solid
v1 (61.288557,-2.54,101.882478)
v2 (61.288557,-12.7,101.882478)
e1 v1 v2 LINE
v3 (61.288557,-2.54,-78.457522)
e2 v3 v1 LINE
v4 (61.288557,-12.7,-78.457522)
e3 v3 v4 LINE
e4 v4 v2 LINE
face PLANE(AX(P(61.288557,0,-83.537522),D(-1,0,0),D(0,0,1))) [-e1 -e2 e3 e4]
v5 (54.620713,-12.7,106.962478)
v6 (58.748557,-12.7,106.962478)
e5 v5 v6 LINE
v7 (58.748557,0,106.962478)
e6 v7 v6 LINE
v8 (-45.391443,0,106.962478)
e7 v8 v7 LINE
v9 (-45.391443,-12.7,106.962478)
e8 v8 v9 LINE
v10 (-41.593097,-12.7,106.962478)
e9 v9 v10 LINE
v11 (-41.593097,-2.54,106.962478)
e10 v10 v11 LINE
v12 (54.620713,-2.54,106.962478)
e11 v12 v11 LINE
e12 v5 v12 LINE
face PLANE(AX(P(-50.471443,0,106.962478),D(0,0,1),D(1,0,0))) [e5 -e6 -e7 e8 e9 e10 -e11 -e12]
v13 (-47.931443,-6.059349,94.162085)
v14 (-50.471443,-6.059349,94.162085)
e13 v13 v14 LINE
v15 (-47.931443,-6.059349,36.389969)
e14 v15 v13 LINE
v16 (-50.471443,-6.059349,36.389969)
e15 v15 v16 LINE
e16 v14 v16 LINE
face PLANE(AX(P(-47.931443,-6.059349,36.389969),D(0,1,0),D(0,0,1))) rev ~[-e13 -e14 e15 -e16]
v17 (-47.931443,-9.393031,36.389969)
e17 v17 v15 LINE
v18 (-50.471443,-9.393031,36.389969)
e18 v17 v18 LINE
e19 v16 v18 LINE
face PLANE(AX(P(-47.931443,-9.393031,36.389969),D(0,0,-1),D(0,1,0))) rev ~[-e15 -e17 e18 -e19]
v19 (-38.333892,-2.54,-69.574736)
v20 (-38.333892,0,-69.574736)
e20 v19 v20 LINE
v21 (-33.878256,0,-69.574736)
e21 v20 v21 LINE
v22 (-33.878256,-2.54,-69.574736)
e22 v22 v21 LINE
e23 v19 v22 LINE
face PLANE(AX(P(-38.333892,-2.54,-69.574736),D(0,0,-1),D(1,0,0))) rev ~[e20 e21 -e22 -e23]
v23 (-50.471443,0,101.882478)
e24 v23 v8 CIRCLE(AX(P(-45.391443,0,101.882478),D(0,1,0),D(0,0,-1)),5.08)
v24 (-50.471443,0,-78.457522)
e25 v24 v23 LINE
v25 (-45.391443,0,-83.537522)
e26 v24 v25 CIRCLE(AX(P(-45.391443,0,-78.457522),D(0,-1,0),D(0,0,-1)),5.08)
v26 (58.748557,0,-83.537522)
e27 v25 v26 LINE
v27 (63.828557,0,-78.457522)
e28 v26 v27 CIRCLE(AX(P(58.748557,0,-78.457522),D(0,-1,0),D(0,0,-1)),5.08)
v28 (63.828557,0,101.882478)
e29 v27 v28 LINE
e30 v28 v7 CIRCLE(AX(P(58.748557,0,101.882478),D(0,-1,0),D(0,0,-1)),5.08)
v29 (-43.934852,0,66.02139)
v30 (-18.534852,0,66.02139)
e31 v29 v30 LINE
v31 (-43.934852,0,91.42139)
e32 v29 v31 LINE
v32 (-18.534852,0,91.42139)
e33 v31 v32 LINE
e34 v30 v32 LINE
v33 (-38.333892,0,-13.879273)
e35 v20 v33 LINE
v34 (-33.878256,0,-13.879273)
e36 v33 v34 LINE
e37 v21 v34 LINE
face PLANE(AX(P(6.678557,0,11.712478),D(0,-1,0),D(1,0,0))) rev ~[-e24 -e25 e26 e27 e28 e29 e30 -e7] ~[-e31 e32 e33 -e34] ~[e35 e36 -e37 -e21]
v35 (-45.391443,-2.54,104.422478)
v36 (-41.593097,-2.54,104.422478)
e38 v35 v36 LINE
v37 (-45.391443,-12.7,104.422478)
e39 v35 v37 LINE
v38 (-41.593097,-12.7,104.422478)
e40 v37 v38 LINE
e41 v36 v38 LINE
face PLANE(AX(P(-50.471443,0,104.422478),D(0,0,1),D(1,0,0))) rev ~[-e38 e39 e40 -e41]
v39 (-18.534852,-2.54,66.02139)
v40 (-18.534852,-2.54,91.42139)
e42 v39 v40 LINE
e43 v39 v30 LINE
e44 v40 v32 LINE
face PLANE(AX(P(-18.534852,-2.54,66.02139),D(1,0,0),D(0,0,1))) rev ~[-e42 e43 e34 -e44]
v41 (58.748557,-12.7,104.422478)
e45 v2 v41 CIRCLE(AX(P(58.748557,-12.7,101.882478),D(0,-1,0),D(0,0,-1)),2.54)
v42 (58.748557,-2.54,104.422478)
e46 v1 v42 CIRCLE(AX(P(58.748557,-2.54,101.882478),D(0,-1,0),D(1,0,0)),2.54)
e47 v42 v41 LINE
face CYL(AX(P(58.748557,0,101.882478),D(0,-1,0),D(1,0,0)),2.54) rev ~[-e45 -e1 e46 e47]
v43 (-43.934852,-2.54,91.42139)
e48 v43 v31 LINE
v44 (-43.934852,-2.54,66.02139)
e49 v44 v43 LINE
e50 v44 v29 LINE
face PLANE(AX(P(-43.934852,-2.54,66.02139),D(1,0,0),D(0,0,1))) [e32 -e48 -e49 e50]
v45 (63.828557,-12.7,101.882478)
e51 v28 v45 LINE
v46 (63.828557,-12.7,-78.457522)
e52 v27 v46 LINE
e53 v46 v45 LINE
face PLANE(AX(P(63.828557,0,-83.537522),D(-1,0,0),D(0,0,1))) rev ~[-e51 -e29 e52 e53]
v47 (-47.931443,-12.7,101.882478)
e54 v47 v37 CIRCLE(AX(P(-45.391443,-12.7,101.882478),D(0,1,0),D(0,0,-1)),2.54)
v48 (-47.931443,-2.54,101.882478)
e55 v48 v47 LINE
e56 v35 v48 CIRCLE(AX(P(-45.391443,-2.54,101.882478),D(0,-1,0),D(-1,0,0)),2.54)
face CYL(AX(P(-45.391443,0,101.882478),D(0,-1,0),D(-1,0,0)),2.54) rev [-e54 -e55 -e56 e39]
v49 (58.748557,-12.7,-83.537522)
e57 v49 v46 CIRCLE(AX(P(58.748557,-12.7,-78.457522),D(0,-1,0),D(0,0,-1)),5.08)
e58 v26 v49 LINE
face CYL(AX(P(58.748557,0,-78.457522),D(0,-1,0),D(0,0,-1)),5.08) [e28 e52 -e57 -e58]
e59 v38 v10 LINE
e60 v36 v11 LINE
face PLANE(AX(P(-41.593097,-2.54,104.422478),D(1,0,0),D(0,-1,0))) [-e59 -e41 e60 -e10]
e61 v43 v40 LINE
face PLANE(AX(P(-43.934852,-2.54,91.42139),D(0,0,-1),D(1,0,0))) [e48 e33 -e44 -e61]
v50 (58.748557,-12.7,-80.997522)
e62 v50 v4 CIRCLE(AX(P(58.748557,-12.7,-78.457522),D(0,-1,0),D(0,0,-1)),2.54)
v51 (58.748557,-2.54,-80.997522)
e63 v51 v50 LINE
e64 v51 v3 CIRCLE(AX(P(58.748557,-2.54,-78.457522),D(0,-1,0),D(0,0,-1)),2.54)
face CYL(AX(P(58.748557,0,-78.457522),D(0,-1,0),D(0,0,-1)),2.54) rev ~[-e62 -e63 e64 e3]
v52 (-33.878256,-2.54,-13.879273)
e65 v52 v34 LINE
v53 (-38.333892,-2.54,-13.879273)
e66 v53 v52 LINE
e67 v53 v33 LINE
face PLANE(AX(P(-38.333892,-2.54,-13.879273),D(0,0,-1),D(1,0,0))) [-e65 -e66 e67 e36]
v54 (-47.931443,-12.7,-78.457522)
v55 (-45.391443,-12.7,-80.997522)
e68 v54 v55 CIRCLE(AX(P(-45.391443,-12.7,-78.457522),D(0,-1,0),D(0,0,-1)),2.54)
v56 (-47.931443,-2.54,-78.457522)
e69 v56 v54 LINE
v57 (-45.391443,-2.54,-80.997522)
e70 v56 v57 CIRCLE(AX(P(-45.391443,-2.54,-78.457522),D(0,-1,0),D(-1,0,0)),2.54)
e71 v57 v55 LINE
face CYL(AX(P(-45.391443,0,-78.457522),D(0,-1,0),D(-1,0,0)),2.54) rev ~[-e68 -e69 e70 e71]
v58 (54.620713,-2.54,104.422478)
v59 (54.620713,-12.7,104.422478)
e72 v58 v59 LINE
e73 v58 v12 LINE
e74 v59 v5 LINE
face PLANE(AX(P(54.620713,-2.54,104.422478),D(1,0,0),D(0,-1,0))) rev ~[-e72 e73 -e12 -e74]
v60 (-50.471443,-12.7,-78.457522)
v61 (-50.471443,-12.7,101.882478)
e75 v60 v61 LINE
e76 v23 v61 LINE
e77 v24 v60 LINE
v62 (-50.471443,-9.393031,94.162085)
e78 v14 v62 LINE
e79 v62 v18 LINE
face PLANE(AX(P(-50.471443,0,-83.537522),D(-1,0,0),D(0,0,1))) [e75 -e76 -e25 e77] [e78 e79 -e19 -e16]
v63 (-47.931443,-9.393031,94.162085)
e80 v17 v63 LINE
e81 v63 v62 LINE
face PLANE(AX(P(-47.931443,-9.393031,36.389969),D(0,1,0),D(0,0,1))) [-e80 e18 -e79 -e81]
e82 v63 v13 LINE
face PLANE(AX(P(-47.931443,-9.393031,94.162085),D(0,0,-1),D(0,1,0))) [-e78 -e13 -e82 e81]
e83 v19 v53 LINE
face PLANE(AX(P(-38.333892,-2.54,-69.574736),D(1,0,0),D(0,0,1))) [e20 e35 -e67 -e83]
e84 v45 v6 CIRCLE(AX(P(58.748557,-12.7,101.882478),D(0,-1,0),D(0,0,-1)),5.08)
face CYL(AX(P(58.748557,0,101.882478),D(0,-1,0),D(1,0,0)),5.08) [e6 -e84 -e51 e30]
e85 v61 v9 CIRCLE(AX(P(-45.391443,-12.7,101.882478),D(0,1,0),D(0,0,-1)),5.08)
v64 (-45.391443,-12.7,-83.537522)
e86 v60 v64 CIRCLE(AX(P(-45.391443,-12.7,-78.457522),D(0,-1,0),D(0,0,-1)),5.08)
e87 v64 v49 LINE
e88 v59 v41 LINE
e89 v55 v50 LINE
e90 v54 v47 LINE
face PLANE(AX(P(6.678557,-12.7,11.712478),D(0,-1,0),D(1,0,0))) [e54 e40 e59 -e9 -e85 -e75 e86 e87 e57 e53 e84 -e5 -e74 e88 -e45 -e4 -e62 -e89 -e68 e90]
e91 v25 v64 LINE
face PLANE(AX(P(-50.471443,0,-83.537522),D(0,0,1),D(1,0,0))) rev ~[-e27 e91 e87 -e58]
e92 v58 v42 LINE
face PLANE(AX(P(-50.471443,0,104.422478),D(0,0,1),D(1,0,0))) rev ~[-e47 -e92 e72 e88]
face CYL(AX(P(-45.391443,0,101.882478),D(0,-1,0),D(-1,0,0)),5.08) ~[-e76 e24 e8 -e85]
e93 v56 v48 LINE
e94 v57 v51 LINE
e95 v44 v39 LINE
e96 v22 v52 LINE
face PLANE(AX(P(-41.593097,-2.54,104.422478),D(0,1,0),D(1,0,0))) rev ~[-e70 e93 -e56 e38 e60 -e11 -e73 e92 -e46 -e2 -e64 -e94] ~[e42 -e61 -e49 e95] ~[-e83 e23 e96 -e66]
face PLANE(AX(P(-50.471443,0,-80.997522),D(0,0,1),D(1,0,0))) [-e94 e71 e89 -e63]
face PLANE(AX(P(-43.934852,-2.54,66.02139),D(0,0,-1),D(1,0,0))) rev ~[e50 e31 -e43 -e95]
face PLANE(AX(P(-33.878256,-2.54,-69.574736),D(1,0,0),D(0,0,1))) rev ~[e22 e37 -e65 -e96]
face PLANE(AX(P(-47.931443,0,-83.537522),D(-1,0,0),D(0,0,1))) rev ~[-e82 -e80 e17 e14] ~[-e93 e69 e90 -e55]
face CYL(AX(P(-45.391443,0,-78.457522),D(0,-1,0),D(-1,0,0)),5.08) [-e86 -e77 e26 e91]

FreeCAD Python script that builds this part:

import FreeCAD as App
import Part
import Sketcher

V = App.Vector
Q = App.Units.Quantity


def edges_at(feature, points):
    """Names of the edges that pass closest to the given points."""
    edges = feature.Shape.Edges
    near = lambda p: min(range(len(edges)), key=lambda i: edges[i].distToShape(Part.Vertex(*p))[0])
    return sorted({f"Edge{near(p) + 1}" for p in points})


def faces_at(feature, points):
    """Names of the faces that lie closest to the given points."""
    faces = feature.Shape.Faces
    near = lambda p: min(range(len(faces)), key=lambda i: faces[i].distToShape(Part.Vertex(*p))[0])
    return sorted({f"Face{near(p) + 1}" for p in points})

doc = App.newDocument("Part")
body = doc.addObject("PartDesign::Body", "Body")

# Sketch on XZ plane
sketch1 = doc.addObject("Sketcher::SketchObject", "Sketch")
body.addObject(sketch1)
sketch1.AttachmentSupport = (doc.XZ_Plane, [""])
sketch1.MapMode = "FlatFace"
sketch1.addGeometry([
    Part.LineSegment(V(-50, 107, 0), V(-50, -84, 0)),
    Part.LineSegment(V(-50, -84, 0), V(64, -84, 0)),
    Part.LineSegment(V(64, -84, 0), V(64, 107, 0)),
    Part.LineSegment(V(64, 107, 0), V(-50, 107, 0)),
], False)
sketch1.addConstraint([
    Sketcher.Constraint("Coincident", 0, 2, 1, 1),
    Sketcher.Constraint("Coincident", 1, 2, 2, 1),
    Sketcher.Constraint("Coincident", 2, 2, 3, 1),
    Sketcher.Constraint("Coincident", 3, 2, 0, 1),
    Sketcher.Constraint("Vertical", 0),
    Sketcher.Constraint("Horizontal", 1),
    Sketcher.Constraint("Vertical", 2),
    Sketcher.Constraint("Horizontal", 3),
    Sketcher.Constraint("DistanceX", 1, 1, 1, 2, Q("4.5 in")),
    Sketcher.Constraint("DistanceY", 0, 2, 0, 1, Q("7.5 in")),
    Sketcher.Constraint("DistanceY", 0, 2, -1, 1, 83.537522),
    Sketcher.Constraint("DistanceX", 0, 2, -1, 1, 50.471443),
])
pad1 = doc.addObject("PartDesign::Pad", "Pad")
body.addObject(pad1)
pad1.Profile = sketch1
pad1.Length = Q("0.5 in")
doc.recompute()

fillet = doc.addObject("PartDesign::Fillet", "Fillet")
body.addObject(fillet)
fillet.Base = (pad1, edges_at(pad1, [
    (-50.471, -6.35, 106.962),
    (-50.471, -6.35, -83.538),
    (63.829, -6.35, -83.538),
    (63.829, -6.35, 106.962),
]))
fillet.Radius = Q("0.2 in")
doc.recompute()

thickness = doc.addObject("PartDesign::Thickness", "Thickness")
body.addObject(thickness)
thickness.Base = (fillet, faces_at(fillet, [(6.679, -12.7, 11.712)]))
thickness.Value = Q("0.1 in")
thickness.Reversed = True
thickness.Join = "Arc"

# Sketch on XZ plane
sketch2 = doc.addObject("Sketcher::SketchObject", "Sketch001")
body.addObject(sketch2)
sketch2.AttachmentSupport = (doc.XZ_Plane, [""])
sketch2.MapMode = "FlatFace"
sketch2.AttachmentOffset = App.Placement(V(0, 0, 0.1 * 25.4), App.Rotation())
sketch2.addGeometry([
    Part.LineSegment(V(-56, 94.6, 0), V(-56, -9, 0)),  # 0
    Part.LineSegment(V(-56, -9, 0), V(-52.1, -9, 0)),  # 1
    Part.LineSegment(V(-52.1, -9, 0), V(-52.1, 94.6, 0)),  # 2
    Part.LineSegment(V(-52.1, 94.6, 0), V(-56, 94.6, 0)),  # 3
    Part.LineSegment(V(-43.9, 91.4, 0), V(-43.9, 66, 0)),  # 4
    Part.LineSegment(V(-43.9, 66, 0), V(-18.5, 66, 0)),  # 5
    Part.LineSegment(V(-18.5, 66, 0), V(-18.5, 91.4, 0)),  # 6
    Part.LineSegment(V(-18.5, 91.4, 0), V(-43.9, 91.4, 0)),  # 7
], False)
sketch2.addConstraint([
    Sketcher.Constraint("Coincident", 0, 2, 1, 1),
    Sketcher.Constraint("Coincident", 1, 2, 2, 1),
    Sketcher.Constraint("Coincident", 2, 2, 3, 1),
    Sketcher.Constraint("Coincident", 3, 2, 0, 1),
    Sketcher.Constraint("Coincident", 4, 2, 5, 1),
    Sketcher.Constraint("Coincident", 5, 2, 6, 1),
    Sketcher.Constraint("Coincident", 6, 2, 7, 1),
    Sketcher.Constraint("Coincident", 7, 2, 4, 1),
    Sketcher.Constraint("Vertical", 0),
    Sketcher.Constraint("Horizontal", 1),
    Sketcher.Constraint("Vertical", 2),
    Sketcher.Constraint("Horizontal", 3),
    Sketcher.Constraint("Vertical", 4),
    Sketcher.Constraint("Horizontal", 5),
    Sketcher.Constraint("Vertical", 6),
    Sketcher.Constraint("Horizontal", 7),
    Sketcher.Constraint("Equal", 7, 4),
    Sketcher.Constraint("DistanceX", 5, 1, 5, 2, Q("1 in")),
    Sketcher.Constraint("DistanceY", 0, 2, 0, 1, 103.5833),
    Sketcher.Constraint("DistanceX", 1, 1, 1, 2, 3.936436),
    Sketcher.Constraint("DistanceY", -1, 1, 4, 2, 66.02139),
    Sketcher.Constraint("DistanceX", 3, 2, 4, 2, 12.069791),
    Sketcher.Constraint("DistanceX", 0, 2, -1, 1, 56.004643),
    Sketcher.Constraint("DistanceY", 0, 2, -1, 1, 8.973324),
])
pocket1 = doc.addObject("PartDesign::Pocket", "Pocket")
body.addObject(pocket1)
pocket1.Profile = sketch2
pocket1.Type = "ThroughAll"

# Sketch on YZ plane
sketch3 = doc.addObject("Sketcher::SketchObject", "Sketch002")
body.addObject(sketch3)
sketch3.AttachmentSupport = (doc.YZ_Plane, [""])
sketch3.MapMode = "FlatFace"
sketch3.AttachmentOffset = App.Placement(V(0, 0, -47.931443), App.Rotation())
sketch3.addGeometry([
    Part.LineSegment(V(-9.4, 94.2, 0), V(-9.4, 36.4, 0)),
    Part.LineSegment(V(-9.4, 36.4, 0), V(-6.1, 36.4, 0)),
    Part.LineSegment(V(-6.1, 36.4, 0), V(-6.1, 94.2, 0)),
    Part.LineSegment(V(-6.1, 94.2, 0), V(-9.4, 94.2, 0)),
], False)
sketch3.addConstraint([
    Sketcher.Constraint("Coincident", 0, 2, 1, 1),
    Sketcher.Constraint("Coincident", 1, 2, 2, 1),
    Sketcher.Constraint("Coincident", 2, 2, 3, 1),
    Sketcher.Constraint("Coincident", 3, 2, 0, 1),
    Sketcher.Constraint("Vertical", 0),
    Sketcher.Constraint("Horizontal", 1),
    Sketcher.Constraint("Vertical", 2),
    Sketcher.Constraint("Horizontal", 3),
    Sketcher.Constraint("DistanceX", 1, 1, 1, 2, 3.333682),
    Sketcher.Constraint("DistanceY", 0, 2, 0, 1, 57.772115),
    Sketcher.Constraint("DistanceX", 0, 2, -1, 1, 9.393031),
    Sketcher.Constraint("DistanceY", -1, 1, 0, 2, 36.389969),
])
pocket2 = doc.addObject("PartDesign::Pocket", "Pocket001")
body.addObject(pocket2)
pocket2.Profile = sketch3
pocket2.Type = "ThroughAll"

# Sketch on XZ plane
sketch4 = doc.addObject("Sketcher::SketchObject", "Sketch003")
body.addObject(sketch4)
sketch4.AttachmentSupport = (doc.XZ_Plane, [""])
sketch4.MapMode = "FlatFace"
sketch4.AttachmentOffset = App.Placement(V(0, 0, 0.1 * 25.4), App.Rotation())
sketch4.addGeometry([
    Part.LineSegment(V(-56, 94.6, 0), V(-56, -9, 0)),  # 0
    Part.LineSegment(V(-56, -9, 0), V(-52.1, -9, 0)),  # 1
    Part.LineSegment(V(-52.1, -9, 0), V(-52.1, 94.6, 0)),  # 2
    Part.LineSegment(V(-52.1, 94.6, 0), V(-56, 94.6, 0)),  # 3
    Part.LineSegment(V(-43.9, 91.4, 0), V(-43.9, 66, 0)),  # 4
    Part.LineSegment(V(-43.9, 66, 0), V(-18.5, 66, 0)),  # 5
    Part.LineSegment(V(-18.5, 66, 0), V(-18.5, 91.4, 0)),  # 6
    Part.LineSegment(V(-18.5, 91.4, 0), V(-43.9, 91.4, 0)),  # 7
], False)
sketch4.addConstraint([
    Sketcher.Constraint("Coincident", 0, 2, 1, 1),
    Sketcher.Constraint("Coincident", 1, 2, 2, 1),
    Sketcher.Constraint("Coincident", 2, 2, 3, 1),
    Sketcher.Constraint("Coincident", 3, 2, 0, 1),
    Sketcher.Constraint("Coincident", 4, 2, 5, 1),
    Sketcher.Constraint("Coincident", 5, 2, 6, 1),
    Sketcher.Constraint("Coincident", 6, 2, 7, 1),
    Sketcher.Constraint("Coincident", 7, 2, 4, 1),
    Sketcher.Constraint("Vertical", 0),
    Sketcher.Constraint("Horizontal", 1),
    Sketcher.Constraint("Vertical", 2),
    Sketcher.Constraint("Horizontal", 3),
    Sketcher.Constraint("Vertical", 4),
    Sketcher.Constraint("Horizontal", 5),
    Sketcher.Constraint("Vertical", 6),
    Sketcher.Constraint("Horizontal", 7),
    Sketcher.Constraint("Equal", 7, 4),
    Sketcher.Constraint("DistanceX", 5, 1, 5, 2, Q("1 in")),
    Sketcher.Constraint("DistanceY", 0, 2, 0, 1, 103.5833),
    Sketcher.Constraint("DistanceX", 1, 1, 1, 2, 3.936436),
    Sketcher.Constraint("DistanceY", -1, 1, 4, 2, 66.02139),
    Sketcher.Constraint("DistanceX", 3, 2, 4, 2, 12.069791),
    Sketcher.Constraint("DistanceX", 0, 2, -1, 1, 56.004643),
    Sketcher.Constraint("DistanceY", 0, 2, -1, 1, 8.973324),
])
pocket3 = doc.addObject("PartDesign::Pocket", "Pocket002")
body.addObject(pocket3)
pocket3.Profile = sketch4
pocket3.Type = "ThroughAll"

# Sketch on XY plane
sketch5 = doc.addObject("Sketcher::SketchObject", "Sketch004")
body.addObject(sketch5)
sketch5.AttachmentSupport = (doc.XY_Plane, [""])
sketch5.MapMode = "FlatFace"
sketch5.AttachmentOffset = App.Placement(V(0, 0, 104.422478), App.Rotation())
sketch5.addGeometry([
    Part.LineSegment(V(-42, -13, 0), V(-42, -3, 0)),
    Part.LineSegment(V(-42, -3, 0), V(55, -3, 0)),
    Part.LineSegment(V(55, -3, 0), V(55, -13, 0)),
    Part.LineSegment(V(55, -13, 0), V(-42, -13, 0)),
], False)
sketch5.addConstraint([
    Sketcher.Constraint("Coincident", 0, 2, 1, 1),
    Sketcher.Constraint("Coincident", 1, 2, 2, 1),
    Sketcher.Constraint("Coincident", 2, 2, 3, 1),
    Sketcher.Constraint("Coincident", 3, 2, 0, 1),
    Sketcher.Constraint("Vertical", 0),
    Sketcher.Constraint("Horizontal", 1),
    Sketcher.Constraint("Vertical", 2),
    Sketcher.Constraint("Horizontal", 3),
    Sketcher.Constraint("DistanceY", 0, 1, 0, 2, Q("0.4 in")),
    Sketcher.Constraint("DistanceY", 0, 2, -1, 1, Q("0.1 in")),
    Sketcher.Constraint("DistanceX", 1, 1, 1, 2, 96.21381),
    Sketcher.Constraint("DistanceX", 0, 2, -1, 1, 41.593097),
])
pocket4 = doc.addObject("PartDesign::Pocket", "Pocket003")
body.addObject(pocket4)
pocket4.Profile = sketch5
pocket4.Type = "ThroughAll"
pocket4.Reversed = True

# Sketch on XZ plane
sketch6 = doc.addObject("Sketcher::SketchObject", "Sketch005")
body.addObject(sketch6)
sketch6.AttachmentSupport = (doc.XZ_Plane, [""])
sketch6.MapMode = "FlatFace"
sketch6.AttachmentOffset = App.Placement(V(0, 0, 0.1 * 25.4), App.Rotation())
sketch6.addGeometry([
    Part.LineSegment(V(-38.3, -13.9, 0), V(-38.3, -69.6, 0)),
    Part.LineSegment(V(-38.3, -69.6, 0), V(-33.9, -69.6, 0)),
    Part.LineSegment(V(-33.9, -69.6, 0), V(-33.9, -13.9, 0)),
    Part.LineSegment(V(-33.9, -13.9, 0), V(-38.3, -13.9, 0)),
], False)
sketch6.addConstraint([
    Sketcher.Constraint("Coincident", 0, 2, 1, 1),
    Sketcher.Constraint("Coincident", 1, 2, 2, 1),
    Sketcher.Constraint("Coincident", 2, 2, 3, 1),
    Sketcher.Constraint("Coincident", 3, 2, 0, 1),
    Sketcher.Constraint("Vertical", 0),
    Sketcher.Constraint("Horizontal", 1),
    Sketcher.Constraint("Vertical", 2),
    Sketcher.Constraint("Horizontal", 3),
    Sketcher.Constraint("DistanceX", 1, 1, 1, 2, 4.455637),
    Sketcher.Constraint("DistanceY", 0, 2, 0, 1, 55.695463),
    Sketcher.Constraint("DistanceX", 0, 2, -1, 1, 38.333892),
    Sketcher.Constraint("DistanceY", 0, 2, -1, 1, 69.574736),
])
pocket5 = doc.addObject("PartDesign::Pocket", "Pocket004")
body.addObject(pocket5)
pocket5.Profile = sketch6
pocket5.Type = "ThroughAll"

doc.recompute()
